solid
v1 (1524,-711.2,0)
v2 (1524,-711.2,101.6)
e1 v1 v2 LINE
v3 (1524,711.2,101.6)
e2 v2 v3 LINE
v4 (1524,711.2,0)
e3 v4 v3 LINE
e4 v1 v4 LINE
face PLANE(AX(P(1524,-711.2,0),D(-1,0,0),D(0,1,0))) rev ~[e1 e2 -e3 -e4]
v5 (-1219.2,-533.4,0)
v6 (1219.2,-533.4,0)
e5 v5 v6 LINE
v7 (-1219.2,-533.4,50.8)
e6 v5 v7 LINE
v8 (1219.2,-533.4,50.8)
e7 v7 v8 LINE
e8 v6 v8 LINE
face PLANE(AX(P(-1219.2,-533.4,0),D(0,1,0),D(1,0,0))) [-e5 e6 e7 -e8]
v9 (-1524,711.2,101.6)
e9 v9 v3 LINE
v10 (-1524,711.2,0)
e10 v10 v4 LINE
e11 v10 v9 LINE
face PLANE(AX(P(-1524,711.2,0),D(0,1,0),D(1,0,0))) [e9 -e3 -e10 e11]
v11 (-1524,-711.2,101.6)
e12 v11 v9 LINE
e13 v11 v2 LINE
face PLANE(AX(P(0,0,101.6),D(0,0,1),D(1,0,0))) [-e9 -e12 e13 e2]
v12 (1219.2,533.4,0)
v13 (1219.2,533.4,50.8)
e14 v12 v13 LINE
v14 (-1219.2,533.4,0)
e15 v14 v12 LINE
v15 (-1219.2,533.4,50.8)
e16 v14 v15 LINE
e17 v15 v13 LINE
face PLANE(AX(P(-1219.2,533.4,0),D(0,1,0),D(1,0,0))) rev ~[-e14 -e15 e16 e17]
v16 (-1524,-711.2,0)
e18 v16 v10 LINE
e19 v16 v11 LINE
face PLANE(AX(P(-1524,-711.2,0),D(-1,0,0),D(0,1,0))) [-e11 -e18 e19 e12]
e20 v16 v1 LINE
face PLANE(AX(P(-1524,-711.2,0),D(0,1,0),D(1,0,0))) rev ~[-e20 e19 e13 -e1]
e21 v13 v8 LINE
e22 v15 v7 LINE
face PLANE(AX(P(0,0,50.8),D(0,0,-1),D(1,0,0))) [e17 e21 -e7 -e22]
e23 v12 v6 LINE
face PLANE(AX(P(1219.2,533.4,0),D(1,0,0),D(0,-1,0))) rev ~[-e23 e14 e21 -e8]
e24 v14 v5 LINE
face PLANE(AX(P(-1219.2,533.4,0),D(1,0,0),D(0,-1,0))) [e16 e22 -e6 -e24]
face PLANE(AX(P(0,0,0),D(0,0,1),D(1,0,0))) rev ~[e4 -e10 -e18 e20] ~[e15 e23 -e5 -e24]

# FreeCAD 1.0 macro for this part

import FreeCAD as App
import Part
import Sketcher
Q = App.Units.Quantity

doc = App.newDocument("Part")
params = doc.addObject("Spreadsheet::Sheet", "Params")
for row, (alias, value) in enumerate([
    ("sketch1_width", "120 in"),
    ("sketch1_height", "56 in"),
    ("pad1_length", "4 in"),
    ("sketch2_width", "96 in"),
    ("sketch2_height", "42 in"),
    ("pocket1_length", "2 in"),
], start=1):
    params.set(f"A{row}", alias)
    params.set(f"B{row}", "=" + value)
    params.setAlias(f"B{row}", alias)

body = doc.addObject("PartDesign::Body", "Body")

sketch1 = doc.addObject("Sketcher::SketchObject", "Sketch")
body.addObject(sketch1)
sketch1.AttachmentSupport = (doc.XY_Plane, [""])
sketch1.MapMode = "FlatFace"
sketch1.addGeometry([
    Part.LineSegment(App.Vector(-1524, 711, 0), App.Vector(-1524, -711, 0)),
    Part.LineSegment(App.Vector(-1524, -711, 0), App.Vector(1524, -711, 0)),
    Part.LineSegment(App.Vector(1524, -711, 0), App.Vector(1524, 711, 0)),
    Part.LineSegment(App.Vector(1524, 711, 0), App.Vector(-1524, 711, 0)),
], False)
sketch1.addConstraint([
    Sketcher.Constraint("Coincident", 0, 2, 1, 1),
    Sketcher.Constraint("Coincident", 1, 2, 2, 1),
    Sketcher.Constraint("Coincident", 2, 2, 3, 1),
    Sketcher.Constraint("Coincident", 3, 2, 0, 1),
    Sketcher.Constraint("Vertical", 0),
    Sketcher.Constraint("Horizontal", 1),
    Sketcher.Constraint("Vertical", 2),
    Sketcher.Constraint("Horizontal", 3),
    Sketcher.Constraint("Symmetric", 0, 2, 2, 2, -1, 1),
    Sketcher.Constraint("DistanceX", 1, 1, 1, 2, Q("120 in")),
    Sketcher.Constraint("DistanceY", 0, 2, 0, 1, Q("56 in")),
])
sketch1.setExpression("Constraints[9]", "Params.sketch1_width")
sketch1.setExpression("Constraints[10]", "Params.sketch1_height")
pad1 = doc.addObject("PartDesign::Pad", "Pad")
body.addObject(pad1)
pad1.Profile = sketch1
pad1.setExpression("Length", "Params.pad1_length")

sketch2 = doc.addObject("Sketcher::SketchObject", "Sketch001")
body.addObject(sketch2)
sketch2.AttachmentSupport = (doc.XY_Plane, [""])
sketch2.MapMode = "FlatFace"
sketch2.addGeometry([
    Part.LineSegment(App.Vector(-1219, -533, 0), App.Vector(-1219, 533, 0)),
    Part.LineSegment(App.Vector(-1219, 533, 0), App.Vector(1219, 533, 0)),
    Part.LineSegment(App.Vector(1219, 533, 0), App.Vector(1219, -533, 0)),
    Part.LineSegment(App.Vector(1219, -533, 0), App.Vector(-1219, -533, 0)),
], False)
sketch2.addConstraint([
    Sketcher.Constraint("Coincident", 0, 2, 1, 1),
    Sketcher.Constraint("Coincident", 1, 2, 2, 1),
    Sketcher.Constraint("Coincident", 2, 2, 3, 1),
    Sketcher.Constraint("Coincident", 3, 2, 0, 1),
    Sketcher.Constraint("Vertical", 0),
    Sketcher.Constraint("Horizontal", 1),
    Sketcher.Constraint("Vertical", 2),
    Sketcher.Constraint("Horizontal", 3),
    Sketcher.Constraint("Symmetric", 0, 2, 2, 2, -1, 1),
    Sketcher.Constraint("DistanceX", 1, 1, 1, 2, Q("96 in")),
    Sketcher.Constraint("DistanceY", 0, 1, 0, 2, Q("42 in")),
])
sketch2.setExpression("Constraints[9]", "Params.sketch2_width")
sketch2.setExpression("Constraints[10]", "Params.sketch2_height")
pocket1 = doc.addObject("PartDesign::Pocket", "Pocket")
body.addObject(pocket1)
pocket1.Profile = sketch2
pocket1.setExpression("Length", "Params.pocket1_length")
pocket1.Reversed = True

doc.recompute()
